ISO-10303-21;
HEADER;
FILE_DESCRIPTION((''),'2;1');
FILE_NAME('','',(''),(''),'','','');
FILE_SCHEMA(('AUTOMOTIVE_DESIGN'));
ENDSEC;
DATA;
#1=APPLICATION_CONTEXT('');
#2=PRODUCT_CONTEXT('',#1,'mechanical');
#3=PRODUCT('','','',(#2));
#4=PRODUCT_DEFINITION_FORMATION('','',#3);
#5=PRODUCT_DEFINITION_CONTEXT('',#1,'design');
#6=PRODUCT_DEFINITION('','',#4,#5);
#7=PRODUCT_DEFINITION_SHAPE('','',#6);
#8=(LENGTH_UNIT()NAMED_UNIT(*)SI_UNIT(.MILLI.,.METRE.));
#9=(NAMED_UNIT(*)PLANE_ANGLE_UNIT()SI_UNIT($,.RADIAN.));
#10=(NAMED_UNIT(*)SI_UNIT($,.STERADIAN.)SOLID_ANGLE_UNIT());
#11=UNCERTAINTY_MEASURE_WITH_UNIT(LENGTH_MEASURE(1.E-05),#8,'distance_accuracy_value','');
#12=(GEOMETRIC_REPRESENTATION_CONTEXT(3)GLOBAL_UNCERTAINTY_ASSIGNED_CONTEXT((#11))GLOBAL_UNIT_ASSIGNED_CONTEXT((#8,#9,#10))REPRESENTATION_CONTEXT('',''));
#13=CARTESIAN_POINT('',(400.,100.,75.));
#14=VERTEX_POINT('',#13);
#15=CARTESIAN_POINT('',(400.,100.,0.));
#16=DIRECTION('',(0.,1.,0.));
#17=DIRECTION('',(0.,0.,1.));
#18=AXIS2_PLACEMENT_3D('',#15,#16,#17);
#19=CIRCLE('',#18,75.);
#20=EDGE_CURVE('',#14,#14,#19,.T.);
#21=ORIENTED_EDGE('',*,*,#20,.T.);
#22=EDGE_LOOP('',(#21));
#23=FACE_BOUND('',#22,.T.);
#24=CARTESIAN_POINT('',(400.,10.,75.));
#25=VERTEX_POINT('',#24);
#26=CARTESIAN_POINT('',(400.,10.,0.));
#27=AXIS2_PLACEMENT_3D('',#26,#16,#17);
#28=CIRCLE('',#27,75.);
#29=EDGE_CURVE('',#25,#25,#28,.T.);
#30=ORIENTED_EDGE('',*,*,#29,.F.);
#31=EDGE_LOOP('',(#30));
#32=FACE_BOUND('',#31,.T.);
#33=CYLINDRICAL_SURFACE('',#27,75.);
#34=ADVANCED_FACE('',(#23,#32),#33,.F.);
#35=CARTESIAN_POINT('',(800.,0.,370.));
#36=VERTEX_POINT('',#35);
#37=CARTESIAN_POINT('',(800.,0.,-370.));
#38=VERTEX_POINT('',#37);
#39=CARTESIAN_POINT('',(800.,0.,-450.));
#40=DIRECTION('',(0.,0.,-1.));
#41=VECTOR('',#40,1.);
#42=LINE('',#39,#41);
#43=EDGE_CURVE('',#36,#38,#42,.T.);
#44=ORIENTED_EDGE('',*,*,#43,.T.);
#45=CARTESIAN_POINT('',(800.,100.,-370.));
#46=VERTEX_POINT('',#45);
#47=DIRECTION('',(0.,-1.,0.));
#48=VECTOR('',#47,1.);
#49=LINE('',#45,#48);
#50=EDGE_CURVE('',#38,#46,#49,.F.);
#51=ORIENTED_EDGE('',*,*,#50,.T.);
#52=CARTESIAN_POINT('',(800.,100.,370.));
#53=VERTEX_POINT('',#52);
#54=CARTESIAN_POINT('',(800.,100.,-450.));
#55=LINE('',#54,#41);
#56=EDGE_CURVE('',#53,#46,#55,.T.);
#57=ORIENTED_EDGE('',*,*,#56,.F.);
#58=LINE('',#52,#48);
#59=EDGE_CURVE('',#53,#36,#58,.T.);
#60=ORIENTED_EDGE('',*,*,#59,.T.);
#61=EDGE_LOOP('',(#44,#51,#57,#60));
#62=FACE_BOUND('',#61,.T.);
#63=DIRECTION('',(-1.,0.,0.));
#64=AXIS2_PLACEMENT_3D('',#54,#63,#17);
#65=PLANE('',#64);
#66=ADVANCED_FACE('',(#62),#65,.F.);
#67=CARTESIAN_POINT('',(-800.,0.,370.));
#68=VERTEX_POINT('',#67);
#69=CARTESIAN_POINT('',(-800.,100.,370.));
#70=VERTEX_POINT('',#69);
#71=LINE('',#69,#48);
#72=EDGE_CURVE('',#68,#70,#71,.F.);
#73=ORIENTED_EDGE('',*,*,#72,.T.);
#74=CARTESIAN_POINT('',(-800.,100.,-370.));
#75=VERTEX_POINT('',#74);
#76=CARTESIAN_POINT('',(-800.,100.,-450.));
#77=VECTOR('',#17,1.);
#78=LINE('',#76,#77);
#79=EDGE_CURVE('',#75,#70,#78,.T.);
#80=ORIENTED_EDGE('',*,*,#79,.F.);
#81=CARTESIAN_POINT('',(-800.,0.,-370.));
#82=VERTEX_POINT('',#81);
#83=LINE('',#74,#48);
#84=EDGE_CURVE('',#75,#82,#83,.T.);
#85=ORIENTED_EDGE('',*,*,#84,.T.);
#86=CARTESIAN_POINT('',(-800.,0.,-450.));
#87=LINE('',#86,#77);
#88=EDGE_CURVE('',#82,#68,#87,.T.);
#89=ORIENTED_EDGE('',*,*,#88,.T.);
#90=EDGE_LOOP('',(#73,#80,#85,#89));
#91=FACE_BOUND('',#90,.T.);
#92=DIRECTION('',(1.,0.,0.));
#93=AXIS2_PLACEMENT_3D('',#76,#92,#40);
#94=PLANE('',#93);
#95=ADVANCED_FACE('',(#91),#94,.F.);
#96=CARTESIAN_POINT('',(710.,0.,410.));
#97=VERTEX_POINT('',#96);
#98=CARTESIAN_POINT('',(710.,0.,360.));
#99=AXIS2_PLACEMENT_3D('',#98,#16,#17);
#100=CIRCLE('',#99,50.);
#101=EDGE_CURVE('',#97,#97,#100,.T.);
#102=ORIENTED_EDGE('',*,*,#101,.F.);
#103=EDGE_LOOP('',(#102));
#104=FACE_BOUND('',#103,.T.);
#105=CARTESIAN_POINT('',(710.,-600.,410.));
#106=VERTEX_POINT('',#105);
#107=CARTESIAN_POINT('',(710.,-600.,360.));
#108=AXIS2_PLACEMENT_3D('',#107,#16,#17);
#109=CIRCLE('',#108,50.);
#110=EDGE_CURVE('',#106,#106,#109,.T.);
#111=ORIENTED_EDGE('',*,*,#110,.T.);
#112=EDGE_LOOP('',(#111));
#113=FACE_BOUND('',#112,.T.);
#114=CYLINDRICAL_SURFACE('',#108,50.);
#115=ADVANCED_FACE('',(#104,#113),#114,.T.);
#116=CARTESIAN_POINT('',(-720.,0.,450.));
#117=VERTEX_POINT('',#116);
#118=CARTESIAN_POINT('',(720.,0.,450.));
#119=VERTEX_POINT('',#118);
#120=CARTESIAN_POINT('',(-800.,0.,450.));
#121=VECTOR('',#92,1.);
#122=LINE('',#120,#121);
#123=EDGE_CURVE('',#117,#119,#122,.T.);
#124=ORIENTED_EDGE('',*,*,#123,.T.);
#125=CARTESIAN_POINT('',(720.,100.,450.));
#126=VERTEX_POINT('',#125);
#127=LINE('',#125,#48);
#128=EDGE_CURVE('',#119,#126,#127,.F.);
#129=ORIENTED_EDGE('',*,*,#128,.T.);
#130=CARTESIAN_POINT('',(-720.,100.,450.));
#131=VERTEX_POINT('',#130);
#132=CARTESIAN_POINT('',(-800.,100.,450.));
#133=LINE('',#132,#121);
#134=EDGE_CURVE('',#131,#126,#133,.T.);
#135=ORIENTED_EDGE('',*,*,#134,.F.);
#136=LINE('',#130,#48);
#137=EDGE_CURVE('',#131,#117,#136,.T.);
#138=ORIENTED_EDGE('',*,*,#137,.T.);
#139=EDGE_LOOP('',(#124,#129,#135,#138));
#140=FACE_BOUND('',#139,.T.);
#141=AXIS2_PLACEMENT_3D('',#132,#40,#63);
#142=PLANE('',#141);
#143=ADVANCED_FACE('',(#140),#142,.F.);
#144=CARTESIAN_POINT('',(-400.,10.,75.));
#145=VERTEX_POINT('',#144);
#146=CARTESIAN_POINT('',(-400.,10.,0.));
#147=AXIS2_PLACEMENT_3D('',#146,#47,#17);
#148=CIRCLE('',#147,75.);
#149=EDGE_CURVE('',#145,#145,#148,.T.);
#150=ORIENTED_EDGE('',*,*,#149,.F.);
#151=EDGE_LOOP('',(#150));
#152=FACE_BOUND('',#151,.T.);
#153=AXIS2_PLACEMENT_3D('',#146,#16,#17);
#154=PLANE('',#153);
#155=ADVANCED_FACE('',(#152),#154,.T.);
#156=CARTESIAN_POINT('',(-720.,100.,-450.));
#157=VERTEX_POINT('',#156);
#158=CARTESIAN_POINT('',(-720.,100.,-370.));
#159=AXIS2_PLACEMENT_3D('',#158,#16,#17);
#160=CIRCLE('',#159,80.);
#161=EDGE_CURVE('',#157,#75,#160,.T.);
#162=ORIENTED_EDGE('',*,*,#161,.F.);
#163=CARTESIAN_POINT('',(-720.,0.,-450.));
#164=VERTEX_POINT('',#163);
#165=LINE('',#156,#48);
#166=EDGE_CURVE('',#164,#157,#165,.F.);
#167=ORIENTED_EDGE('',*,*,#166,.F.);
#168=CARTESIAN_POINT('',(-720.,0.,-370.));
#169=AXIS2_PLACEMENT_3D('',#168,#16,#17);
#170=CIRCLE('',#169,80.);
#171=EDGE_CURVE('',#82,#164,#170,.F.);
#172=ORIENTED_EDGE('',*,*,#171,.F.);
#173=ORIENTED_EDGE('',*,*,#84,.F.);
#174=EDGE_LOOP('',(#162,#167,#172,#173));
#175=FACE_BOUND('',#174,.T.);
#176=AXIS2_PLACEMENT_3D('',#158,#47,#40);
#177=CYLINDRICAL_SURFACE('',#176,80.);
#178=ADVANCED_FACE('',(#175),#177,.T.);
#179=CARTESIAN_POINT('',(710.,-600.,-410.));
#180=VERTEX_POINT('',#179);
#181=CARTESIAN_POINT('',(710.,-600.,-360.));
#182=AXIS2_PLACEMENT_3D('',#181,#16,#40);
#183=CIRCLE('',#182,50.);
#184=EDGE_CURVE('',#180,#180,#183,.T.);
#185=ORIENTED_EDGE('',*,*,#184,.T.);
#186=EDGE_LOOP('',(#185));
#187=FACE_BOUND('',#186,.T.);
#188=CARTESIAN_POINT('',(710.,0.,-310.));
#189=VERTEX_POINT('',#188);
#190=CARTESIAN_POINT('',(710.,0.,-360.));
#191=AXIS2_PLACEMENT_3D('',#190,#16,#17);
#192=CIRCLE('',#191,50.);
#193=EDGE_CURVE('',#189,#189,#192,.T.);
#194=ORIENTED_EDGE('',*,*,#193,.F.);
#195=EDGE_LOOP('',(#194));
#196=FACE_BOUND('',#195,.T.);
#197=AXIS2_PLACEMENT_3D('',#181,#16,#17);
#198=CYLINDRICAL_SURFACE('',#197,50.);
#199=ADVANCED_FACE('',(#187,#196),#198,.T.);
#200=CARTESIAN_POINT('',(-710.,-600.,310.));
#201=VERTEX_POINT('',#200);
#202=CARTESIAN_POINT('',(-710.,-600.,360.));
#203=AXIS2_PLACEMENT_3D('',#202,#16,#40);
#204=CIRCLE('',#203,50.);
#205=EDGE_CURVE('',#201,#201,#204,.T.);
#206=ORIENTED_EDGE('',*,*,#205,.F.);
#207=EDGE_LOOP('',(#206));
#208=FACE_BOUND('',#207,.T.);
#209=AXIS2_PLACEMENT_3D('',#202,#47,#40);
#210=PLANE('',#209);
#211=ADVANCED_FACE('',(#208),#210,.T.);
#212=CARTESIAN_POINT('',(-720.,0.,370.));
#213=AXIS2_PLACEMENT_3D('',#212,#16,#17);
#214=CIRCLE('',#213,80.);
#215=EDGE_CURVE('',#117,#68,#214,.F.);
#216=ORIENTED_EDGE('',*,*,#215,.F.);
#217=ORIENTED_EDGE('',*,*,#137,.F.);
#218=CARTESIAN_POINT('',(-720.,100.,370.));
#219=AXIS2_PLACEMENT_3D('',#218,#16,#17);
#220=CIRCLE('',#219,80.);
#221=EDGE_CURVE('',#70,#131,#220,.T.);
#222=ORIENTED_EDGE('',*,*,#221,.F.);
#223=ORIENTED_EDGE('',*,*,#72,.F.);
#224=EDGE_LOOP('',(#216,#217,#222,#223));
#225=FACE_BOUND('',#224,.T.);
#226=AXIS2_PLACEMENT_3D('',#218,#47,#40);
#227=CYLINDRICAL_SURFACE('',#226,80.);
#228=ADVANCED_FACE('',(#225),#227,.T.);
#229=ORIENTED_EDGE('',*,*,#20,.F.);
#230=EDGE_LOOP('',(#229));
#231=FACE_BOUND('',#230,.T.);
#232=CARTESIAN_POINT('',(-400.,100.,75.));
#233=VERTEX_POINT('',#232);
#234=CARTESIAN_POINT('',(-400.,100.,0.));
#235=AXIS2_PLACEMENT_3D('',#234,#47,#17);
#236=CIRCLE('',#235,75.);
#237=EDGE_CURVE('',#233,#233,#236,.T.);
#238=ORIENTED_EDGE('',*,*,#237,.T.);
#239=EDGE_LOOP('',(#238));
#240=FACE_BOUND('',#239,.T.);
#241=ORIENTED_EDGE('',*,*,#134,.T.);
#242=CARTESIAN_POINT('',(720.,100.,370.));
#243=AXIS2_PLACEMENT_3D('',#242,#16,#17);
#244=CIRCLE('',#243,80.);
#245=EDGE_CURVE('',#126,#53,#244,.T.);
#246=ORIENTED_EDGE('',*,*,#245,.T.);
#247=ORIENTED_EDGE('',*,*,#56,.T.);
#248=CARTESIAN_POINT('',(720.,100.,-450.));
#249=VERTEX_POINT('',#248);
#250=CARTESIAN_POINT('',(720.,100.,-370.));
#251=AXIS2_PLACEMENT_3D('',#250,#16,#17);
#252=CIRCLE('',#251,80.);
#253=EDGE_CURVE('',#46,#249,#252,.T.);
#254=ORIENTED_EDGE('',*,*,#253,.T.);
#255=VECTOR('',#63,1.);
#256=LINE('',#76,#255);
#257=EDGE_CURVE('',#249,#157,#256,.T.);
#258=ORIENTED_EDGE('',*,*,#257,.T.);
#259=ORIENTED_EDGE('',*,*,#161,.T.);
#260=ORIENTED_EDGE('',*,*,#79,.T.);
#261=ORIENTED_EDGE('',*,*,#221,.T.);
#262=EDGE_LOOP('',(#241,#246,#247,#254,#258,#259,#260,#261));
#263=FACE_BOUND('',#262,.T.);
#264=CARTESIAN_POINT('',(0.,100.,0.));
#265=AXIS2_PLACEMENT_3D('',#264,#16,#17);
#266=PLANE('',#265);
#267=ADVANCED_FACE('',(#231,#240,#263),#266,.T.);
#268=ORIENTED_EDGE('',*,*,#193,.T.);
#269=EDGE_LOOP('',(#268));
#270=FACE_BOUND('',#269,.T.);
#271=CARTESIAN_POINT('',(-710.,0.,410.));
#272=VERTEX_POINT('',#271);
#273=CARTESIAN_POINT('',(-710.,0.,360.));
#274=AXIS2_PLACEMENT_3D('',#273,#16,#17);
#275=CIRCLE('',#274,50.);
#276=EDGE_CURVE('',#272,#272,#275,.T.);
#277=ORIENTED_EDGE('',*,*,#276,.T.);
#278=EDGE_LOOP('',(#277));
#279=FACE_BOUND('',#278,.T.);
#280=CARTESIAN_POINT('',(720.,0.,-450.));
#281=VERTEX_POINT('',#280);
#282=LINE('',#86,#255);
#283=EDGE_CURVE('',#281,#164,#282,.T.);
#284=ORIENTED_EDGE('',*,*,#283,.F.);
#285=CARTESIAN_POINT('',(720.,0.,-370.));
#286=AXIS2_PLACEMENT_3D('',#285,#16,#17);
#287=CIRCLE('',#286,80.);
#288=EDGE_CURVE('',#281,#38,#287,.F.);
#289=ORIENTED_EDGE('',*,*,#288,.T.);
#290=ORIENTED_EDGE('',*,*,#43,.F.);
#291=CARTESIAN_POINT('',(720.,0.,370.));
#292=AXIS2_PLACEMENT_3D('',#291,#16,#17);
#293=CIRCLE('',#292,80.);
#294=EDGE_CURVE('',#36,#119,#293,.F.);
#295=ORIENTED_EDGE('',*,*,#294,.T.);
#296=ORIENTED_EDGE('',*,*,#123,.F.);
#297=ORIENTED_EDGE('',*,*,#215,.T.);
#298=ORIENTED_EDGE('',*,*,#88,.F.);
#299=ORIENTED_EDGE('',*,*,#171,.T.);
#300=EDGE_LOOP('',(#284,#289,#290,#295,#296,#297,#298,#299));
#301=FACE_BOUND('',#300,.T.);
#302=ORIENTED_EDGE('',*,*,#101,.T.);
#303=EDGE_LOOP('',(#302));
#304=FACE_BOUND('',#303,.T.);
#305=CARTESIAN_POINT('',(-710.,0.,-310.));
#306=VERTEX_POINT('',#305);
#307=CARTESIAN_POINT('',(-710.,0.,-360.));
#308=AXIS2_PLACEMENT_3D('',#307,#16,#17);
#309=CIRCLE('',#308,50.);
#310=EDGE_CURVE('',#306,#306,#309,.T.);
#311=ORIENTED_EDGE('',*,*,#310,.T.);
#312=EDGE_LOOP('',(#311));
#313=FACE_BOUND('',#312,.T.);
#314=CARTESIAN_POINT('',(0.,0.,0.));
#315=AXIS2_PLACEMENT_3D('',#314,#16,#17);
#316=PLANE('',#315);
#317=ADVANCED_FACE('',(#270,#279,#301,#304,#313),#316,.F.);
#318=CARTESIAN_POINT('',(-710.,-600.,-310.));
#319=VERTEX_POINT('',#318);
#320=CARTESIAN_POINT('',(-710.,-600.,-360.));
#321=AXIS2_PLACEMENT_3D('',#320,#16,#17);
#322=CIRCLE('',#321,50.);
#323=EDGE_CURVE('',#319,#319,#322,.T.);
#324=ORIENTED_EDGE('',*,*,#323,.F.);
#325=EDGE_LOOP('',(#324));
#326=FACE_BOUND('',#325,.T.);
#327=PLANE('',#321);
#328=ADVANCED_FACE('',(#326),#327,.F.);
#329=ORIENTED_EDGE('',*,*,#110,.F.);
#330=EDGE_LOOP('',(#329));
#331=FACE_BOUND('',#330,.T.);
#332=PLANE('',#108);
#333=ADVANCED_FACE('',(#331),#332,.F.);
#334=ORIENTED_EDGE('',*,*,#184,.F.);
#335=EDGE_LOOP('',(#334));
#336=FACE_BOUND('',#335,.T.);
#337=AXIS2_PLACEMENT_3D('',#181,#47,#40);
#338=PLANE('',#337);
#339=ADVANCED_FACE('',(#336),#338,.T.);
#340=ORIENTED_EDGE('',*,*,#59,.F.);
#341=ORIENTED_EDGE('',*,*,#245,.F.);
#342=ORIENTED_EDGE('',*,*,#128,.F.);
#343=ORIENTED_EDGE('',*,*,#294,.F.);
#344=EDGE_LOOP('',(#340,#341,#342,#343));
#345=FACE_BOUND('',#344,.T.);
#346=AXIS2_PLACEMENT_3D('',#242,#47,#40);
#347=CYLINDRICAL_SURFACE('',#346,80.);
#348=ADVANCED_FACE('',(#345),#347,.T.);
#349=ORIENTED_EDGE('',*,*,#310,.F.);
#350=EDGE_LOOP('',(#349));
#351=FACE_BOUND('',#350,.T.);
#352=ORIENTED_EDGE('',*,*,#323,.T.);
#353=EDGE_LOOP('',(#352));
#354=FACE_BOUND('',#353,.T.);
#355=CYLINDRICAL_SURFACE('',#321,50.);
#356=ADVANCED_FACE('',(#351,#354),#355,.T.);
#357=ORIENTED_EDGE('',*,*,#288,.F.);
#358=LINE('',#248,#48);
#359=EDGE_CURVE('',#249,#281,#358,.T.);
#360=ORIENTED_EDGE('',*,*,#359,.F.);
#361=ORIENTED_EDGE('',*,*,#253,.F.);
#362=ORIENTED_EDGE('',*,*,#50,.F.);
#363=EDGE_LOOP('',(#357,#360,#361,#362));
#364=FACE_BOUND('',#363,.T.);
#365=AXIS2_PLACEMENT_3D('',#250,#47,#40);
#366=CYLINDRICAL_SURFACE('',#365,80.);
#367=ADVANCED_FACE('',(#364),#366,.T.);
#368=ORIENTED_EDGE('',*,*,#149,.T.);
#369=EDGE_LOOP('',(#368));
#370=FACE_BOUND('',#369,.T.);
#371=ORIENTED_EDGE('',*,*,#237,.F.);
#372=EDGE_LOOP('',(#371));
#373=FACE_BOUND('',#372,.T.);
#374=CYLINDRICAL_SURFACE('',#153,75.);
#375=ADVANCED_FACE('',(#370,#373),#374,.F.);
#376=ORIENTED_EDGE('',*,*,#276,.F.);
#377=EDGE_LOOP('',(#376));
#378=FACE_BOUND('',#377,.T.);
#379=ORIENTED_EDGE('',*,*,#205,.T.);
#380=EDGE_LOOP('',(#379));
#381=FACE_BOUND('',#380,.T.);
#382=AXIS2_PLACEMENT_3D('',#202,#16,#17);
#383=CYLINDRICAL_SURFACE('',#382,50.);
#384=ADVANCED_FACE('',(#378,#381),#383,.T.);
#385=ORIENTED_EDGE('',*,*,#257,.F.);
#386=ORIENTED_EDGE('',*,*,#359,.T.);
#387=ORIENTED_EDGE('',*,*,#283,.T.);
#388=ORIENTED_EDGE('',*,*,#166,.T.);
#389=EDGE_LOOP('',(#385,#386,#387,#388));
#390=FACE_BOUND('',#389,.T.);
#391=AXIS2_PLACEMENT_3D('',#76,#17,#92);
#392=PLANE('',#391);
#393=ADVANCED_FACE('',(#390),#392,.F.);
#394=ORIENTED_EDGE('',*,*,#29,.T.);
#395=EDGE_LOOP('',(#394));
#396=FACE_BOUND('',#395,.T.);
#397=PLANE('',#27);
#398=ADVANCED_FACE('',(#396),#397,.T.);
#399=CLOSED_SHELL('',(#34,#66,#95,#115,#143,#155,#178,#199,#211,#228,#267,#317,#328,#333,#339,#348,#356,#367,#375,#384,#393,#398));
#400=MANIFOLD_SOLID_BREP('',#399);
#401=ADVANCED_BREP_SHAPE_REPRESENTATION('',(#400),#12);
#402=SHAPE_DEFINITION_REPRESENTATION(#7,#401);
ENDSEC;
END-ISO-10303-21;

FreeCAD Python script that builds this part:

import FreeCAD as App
import Part
import Sketcher


def edges_at(feature, points):
    """Names of the edges that pass closest to the given points."""
    edges = feature.Shape.Edges
    near = lambda p: min(range(len(edges)), key=lambda i: edges[i].distToShape(Part.Vertex(*p))[0])
    return sorted({f"Edge{near(p) + 1}" for p in points})


def add_polygon(sketch, points):
    """Adds a closed chain of lines whose ends are joined by coincident constraints."""
    first, n = sketch.GeometryCount, len(points)
    for a, b in zip(points, points[1:] + points[:1]):
        sketch.addGeometry(Part.LineSegment(App.Vector(*a, 0), App.Vector(*b, 0)), False)
    for i in range(n):
        sketch.addConstraint(Sketcher.Constraint("Coincident", first + i, 2, first + (i + 1) % n, 1))

doc = App.newDocument("Part")
body = doc.addObject("PartDesign::Body", "Body")

# Sketch on XZ plane
sketch1 = body.newObject("Sketcher::SketchObject", "Sketch")
sketch1.AttachmentSupport = (doc.getObject("XZ_Plane"), [""])
sketch1.MapMode = "FlatFace"
add_polygon(sketch1, [(-800, -450), (-800, 450), (800, 450), (800, -450)])  # lines 0-3
sketch1.addConstraint(Sketcher.Constraint("Vertical", 0))
sketch1.addConstraint(Sketcher.Constraint("Horizontal", 1))
sketch1.addConstraint(Sketcher.Constraint("Vertical", 2))
sketch1.addConstraint(Sketcher.Constraint("Horizontal", 3))
sketch1.addConstraint(Sketcher.Constraint("Symmetric", 0, 2, 2, 2, -1, 1))
sketch1.addConstraint(Sketcher.Constraint("DistanceX", 1, 1, 1, 2, 1600.0))
sketch1.addConstraint(Sketcher.Constraint("DistanceY", 0, 1, 0, 2, 900.0))
pad1 = body.newObject("PartDesign::Pad", "Pad")
pad1.Profile = sketch1
pad1.Length = 100
pad1.Reversed = True

# Sketch on XZ plane
sketch2 = body.newObject("Sketcher::SketchObject", "Sketch001")
sketch2.AttachmentSupport = (doc.getObject("XZ_Plane"), [""])
sketch2.MapMode = "FlatFace"
sketch2.AttachmentOffset = App.Placement(App.Vector(0, 0, -100), App.Rotation())
sketch2.addGeometry(Part.Circle(App.Vector(-710, -360, 0), App.Vector(0, 0, 1), 50), False)
sketch2.addGeometry(Part.Circle(App.Vector(710, -360, 0), App.Vector(0, 0, 1), 50), False)
sketch2.addGeometry(Part.Circle(App.Vector(710, 360, 0), App.Vector(0, 0, 1), 50), False)
sketch2.addGeometry(Part.Circle(App.Vector(-710, 360, 0), App.Vector(0, 0, 1), 50), False)
sketch2.addConstraint(Sketcher.Constraint("Equal", 0, 1))
sketch2.addConstraint(Sketcher.Constraint("Equal", 1, 2))
sketch2.addConstraint(Sketcher.Constraint("Equal", 2, 3))
sketch2.addConstraint(Sketcher.Constraint("Symmetric", 0, 3, 2, 3, -1, 1))
sketch2.addConstraint(Sketcher.Constraint("Symmetric", 1, 3, 3, 3, -1, 1))
sketch2.addConstraint(Sketcher.Constraint("Symmetric", 0, 3, 1, 3, -2))
sketch2.addConstraint(Sketcher.Constraint("Diameter", 0, 100.0))
sketch2.addConstraint(Sketcher.Constraint("DistanceX", 0, 3, -1, 1, 710.0))
sketch2.addConstraint(Sketcher.Constraint("DistanceY", 0, 3, -1, 1, 360.0))
pad2 = body.newObject("PartDesign::Pad", "Pad001")
pad2.Profile = sketch2
pad2.Length = 700

# Sketch on XZ plane
sketch3 = body.newObject("Sketcher::SketchObject", "Sketch002")
sketch3.AttachmentSupport = (doc.getObject("XZ_Plane"), [""])
sketch3.MapMode = "FlatFace"
sketch3.AttachmentOffset = App.Placement(App.Vector(0, 0, -100), App.Rotation())
sketch3.addGeometry(Part.Circle(App.Vector(400, 0, 0), App.Vector(0, 0, 1), 75), False)
sketch3.addConstraint(Sketcher.Constraint("PointOnObject", 0, 3, -1))
sketch3.addConstraint(Sketcher.Constraint("Diameter", 0, 150.0))
sketch3.addConstraint(Sketcher.Constraint("DistanceX", -1, 1, 0, 3, 400.0))
pocket1 = body.newObject("PartDesign::Pocket", "Pocket")
pocket1.Profile = sketch3
pocket1.Length = 90
pocket1.Reversed = True
doc.recompute()

mirrored = body.newObject("PartDesign::Mirrored", "Mirrored")
mirrored.Originals = [pocket1]
mirrored.MirrorPlane = (doc.getObject("YZ_Plane"), [""])
body.Tip = mirrored
doc.recompute()

fillet = body.newObject("PartDesign::Fillet", "Fillet")
fillet.Base = (mirrored, edges_at(mirrored, [
    (800, 50, 450),
    (-800, 50, 450),
    (-800, 50, -450),
    (800, 50, -450),
]))
fillet.Radius = 80

doc.recompute()
